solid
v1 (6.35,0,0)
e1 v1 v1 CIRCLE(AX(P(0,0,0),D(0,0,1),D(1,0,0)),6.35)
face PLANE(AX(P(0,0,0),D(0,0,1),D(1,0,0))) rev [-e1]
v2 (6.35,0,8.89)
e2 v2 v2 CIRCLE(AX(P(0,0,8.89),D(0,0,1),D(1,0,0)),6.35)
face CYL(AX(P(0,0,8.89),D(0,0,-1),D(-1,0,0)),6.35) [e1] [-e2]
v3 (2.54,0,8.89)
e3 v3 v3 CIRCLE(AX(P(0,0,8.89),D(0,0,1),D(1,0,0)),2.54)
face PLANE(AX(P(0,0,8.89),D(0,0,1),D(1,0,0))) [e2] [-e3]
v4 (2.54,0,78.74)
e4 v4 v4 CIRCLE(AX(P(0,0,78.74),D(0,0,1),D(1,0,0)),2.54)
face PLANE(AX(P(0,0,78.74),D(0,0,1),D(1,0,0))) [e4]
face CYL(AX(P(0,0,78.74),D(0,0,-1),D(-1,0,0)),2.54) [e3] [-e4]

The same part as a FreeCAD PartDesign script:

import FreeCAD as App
import Part
import Sketcher

V = App.Vector
Q = App.Units.Quantity

doc = App.newDocument("Part")
params = doc.addObject("Spreadsheet::Sheet", "Params")
for row, (alias, value) in enumerate([
    ("sketch1_diameter", "0.5 in"),
    ("pad1_length", "0.35 in"),
    ("sketch2_diameter", "0.2 in"),
    ("pad2_length", "2.75 in"),
], start=1):
    params.set(f"A{row}", alias)
    params.set(f"B{row}", "=" + value)
    params.setAlias(f"B{row}", alias)

body = doc.addObject("PartDesign::Body", "Body")

# Sketch on XY plane
sketch1 = doc.addObject("Sketcher::SketchObject", "Sketch")
body.addObject(sketch1)
sketch1.AttachmentSupport = (doc.XY_Plane, [""])
sketch1.MapMode = "FlatFace"
sketch1.addGeometry(Part.Circle(V(0, 0, 0), V(0, 0, 1), 6.35), False)
sketch1.addConstraint([
    Sketcher.Constraint("Coincident", 0, 3, -1, 1),
    Sketcher.Constraint("Diameter", 0, Q("0.5 in")),
])
sketch1.setExpression("Constraints[1]", "Params.sketch1_diameter")
pad1 = doc.addObject("PartDesign::Pad", "Pad")
body.addObject(pad1)
pad1.Profile = sketch1
pad1.setExpression("Length", "Params.pad1_length")

# Sketch on XY plane
sketch2 = doc.addObject("Sketcher::SketchObject", "Sketch001")
body.addObject(sketch2)
sketch2.AttachmentSupport = (doc.XY_Plane, [""])
sketch2.MapMode = "FlatFace"
sketch2.AttachmentOffset = App.Placement(V(0, 0, 0.35 * 25.4), App.Rotation())
sketch2.addGeometry(Part.Circle(V(0, 0, 0), V(0, 0, 1), 2.54), False)
sketch2.addConstraint([
    Sketcher.Constraint("Coincident", 0, 3, -1, 1),
    Sketcher.Constraint("Diameter", 0, Q("0.2 in")),
])
sketch2.setExpression("Constraints[1]", "Params.sketch2_diameter")
pad2 = doc.addObject("PartDesign::Pad", "Pad001")
body.addObject(pad2)
pad2.Profile = sketch2
pad2.setExpression("Length", "Params.pad2_length")

doc.recompute()
